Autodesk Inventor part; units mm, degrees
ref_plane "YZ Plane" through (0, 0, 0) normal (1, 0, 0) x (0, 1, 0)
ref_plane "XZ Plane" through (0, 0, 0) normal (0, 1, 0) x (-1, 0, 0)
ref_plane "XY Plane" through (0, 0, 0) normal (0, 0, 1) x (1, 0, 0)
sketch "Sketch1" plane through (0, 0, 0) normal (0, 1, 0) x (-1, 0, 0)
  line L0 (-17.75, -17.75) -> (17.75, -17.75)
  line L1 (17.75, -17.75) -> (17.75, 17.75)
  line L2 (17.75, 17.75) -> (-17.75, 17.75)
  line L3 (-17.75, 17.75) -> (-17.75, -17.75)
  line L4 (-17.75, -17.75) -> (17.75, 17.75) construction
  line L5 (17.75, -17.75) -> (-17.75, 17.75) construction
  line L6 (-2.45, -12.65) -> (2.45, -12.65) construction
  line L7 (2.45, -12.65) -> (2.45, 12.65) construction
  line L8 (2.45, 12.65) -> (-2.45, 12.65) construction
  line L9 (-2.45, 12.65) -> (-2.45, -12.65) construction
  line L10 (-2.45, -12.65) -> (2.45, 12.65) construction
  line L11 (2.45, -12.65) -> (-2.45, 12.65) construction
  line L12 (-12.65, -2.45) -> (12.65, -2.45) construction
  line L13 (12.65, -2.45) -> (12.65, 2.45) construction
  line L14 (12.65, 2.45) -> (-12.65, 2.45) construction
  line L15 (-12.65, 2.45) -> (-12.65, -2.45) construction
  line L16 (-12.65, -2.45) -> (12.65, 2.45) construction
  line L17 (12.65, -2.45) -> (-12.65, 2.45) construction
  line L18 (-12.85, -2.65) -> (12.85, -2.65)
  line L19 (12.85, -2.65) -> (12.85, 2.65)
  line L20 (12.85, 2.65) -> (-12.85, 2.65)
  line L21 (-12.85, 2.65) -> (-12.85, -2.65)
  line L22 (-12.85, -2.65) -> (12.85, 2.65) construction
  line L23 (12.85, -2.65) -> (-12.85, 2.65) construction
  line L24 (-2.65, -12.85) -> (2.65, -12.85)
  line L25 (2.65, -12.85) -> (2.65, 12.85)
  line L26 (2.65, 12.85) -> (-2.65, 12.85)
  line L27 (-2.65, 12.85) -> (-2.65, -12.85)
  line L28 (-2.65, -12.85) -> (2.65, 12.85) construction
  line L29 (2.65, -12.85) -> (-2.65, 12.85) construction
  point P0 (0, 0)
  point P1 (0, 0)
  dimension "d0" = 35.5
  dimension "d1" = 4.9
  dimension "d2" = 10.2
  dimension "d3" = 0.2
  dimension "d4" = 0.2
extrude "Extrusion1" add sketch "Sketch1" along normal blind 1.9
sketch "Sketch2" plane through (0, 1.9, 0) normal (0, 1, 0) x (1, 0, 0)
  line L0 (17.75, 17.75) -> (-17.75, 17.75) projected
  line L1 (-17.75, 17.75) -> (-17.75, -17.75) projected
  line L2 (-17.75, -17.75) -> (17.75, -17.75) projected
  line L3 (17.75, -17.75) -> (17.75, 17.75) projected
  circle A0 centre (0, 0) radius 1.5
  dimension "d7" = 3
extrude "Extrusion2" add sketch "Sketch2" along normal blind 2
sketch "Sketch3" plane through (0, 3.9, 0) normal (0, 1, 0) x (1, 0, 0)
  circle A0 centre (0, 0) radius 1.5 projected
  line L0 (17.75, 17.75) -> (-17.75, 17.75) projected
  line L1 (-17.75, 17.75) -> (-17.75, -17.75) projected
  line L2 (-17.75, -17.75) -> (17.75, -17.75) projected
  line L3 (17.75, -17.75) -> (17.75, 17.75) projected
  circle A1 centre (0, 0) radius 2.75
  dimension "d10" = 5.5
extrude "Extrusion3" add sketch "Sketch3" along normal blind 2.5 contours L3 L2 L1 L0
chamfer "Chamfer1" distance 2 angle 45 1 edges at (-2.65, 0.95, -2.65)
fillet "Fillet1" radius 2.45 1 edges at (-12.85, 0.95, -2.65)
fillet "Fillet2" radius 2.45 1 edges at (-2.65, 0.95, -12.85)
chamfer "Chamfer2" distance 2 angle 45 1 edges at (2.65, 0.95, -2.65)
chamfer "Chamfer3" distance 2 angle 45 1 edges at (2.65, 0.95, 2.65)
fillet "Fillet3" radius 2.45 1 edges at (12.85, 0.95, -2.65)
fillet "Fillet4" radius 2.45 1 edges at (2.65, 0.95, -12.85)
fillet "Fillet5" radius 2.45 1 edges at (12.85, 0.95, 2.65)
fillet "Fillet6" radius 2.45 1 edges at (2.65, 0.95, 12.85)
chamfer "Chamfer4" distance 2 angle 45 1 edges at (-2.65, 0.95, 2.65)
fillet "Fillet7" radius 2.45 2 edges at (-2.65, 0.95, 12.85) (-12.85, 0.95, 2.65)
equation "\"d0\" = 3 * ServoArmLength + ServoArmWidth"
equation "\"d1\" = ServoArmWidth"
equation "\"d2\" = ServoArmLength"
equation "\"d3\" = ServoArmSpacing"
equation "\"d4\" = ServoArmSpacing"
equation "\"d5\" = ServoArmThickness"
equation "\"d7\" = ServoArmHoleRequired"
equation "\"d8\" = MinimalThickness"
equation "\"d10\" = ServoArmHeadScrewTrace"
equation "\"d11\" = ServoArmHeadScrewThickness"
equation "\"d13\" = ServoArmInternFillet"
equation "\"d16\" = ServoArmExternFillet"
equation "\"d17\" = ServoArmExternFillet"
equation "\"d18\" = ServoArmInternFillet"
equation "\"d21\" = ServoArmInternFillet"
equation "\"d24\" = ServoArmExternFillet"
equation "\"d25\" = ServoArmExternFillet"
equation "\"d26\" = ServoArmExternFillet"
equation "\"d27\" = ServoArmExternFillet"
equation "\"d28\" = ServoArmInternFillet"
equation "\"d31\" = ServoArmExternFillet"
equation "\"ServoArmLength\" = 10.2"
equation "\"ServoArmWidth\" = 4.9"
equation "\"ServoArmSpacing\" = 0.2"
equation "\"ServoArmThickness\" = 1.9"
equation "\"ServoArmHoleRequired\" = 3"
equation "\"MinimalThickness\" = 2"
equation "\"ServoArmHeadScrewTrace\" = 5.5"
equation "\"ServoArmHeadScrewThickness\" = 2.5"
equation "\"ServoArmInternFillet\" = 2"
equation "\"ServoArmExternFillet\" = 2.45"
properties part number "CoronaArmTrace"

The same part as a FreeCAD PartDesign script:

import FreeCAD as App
import Part
import Sketcher

V = App.Vector
Q = App.Units.Quantity


def edges_at(feature, points):
    """Names of the edges that pass closest to the given points."""
    edges = feature.Shape.Edges
    near = lambda p: min(range(len(edges)), key=lambda i: edges[i].distToShape(Part.Vertex(*p))[0])
    return sorted({f"Edge{near(p) + 1}" for p in points})


def add_polygon(sketch, points):
    """Adds a closed chain of lines whose ends are joined by coincident constraints."""
    first, n = sketch.GeometryCount, len(points)
    for a, b in zip(points, points[1:] + points[:1]):
        sketch.addGeometry(Part.LineSegment(App.Vector(*a, 0), App.Vector(*b, 0)), False)
    for i in range(n):
        sketch.addConstraint(Sketcher.Constraint("Coincident", first + i, 2, first + (i + 1) % n, 1))

doc = App.newDocument("Part")
body = doc.addObject("PartDesign::Body", "Body")

sketch1 = body.newObject("Sketcher::SketchObject", "Sketch")
sketch1.AttachmentSupport = (doc.getObject("XZ_Plane"), [""])
sketch1.MapMode = "FlatFace"
add_polygon(sketch1, [(17.75, 17.75), (17.75, -17.75), (-17.75, -17.75), (-17.75, 17.75)])
add_polygon(sketch1, [(2.65, -2.65), (12.85, -2.65), (12.85, 2.65), (2.65, 2.65), (2.65, 12.85), (-2.65, 12.85), (-2.65, 2.65), (-12.85, 2.65), (-12.85, -2.65), (-2.65, -2.65), (-2.65, -12.85), (2.65, -12.85)])
sketch1.addConstraint([
    Sketcher.Constraint("Vertical", 0),
    Sketcher.Constraint("Horizontal", 1),
    Sketcher.Constraint("Vertical", 2),
    Sketcher.Constraint("Horizontal", 3),
    Sketcher.Constraint("Horizontal", 4),
    Sketcher.Constraint("Vertical", 5),
    Sketcher.Constraint("Horizontal", 6),
    Sketcher.Constraint("Vertical", 7),
    Sketcher.Constraint("Horizontal", 8),
    Sketcher.Constraint("Vertical", 9),
    Sketcher.Constraint("Horizontal", 10),
    Sketcher.Constraint("Vertical", 11),
    Sketcher.Constraint("Horizontal", 12),
    Sketcher.Constraint("Vertical", 13),
    Sketcher.Constraint("Horizontal", 14),
    Sketcher.Constraint("Vertical", 15),
    Sketcher.Constraint("Symmetric", 0, 2, 2, 2, -1, 1),
    Sketcher.Constraint("Symmetric", 4, 2, 10, 2, -1, 1),
    Sketcher.Constraint("Symmetric", 6, 2, 12, 2, -1, 1),
    Sketcher.Constraint("Symmetric", 8, 2, 14, 2, -1, 1),
    Sketcher.Constraint("Symmetric", 6, 2, 9, 2, -2),
    Sketcher.Constraint("Equal", 3, 0),
    Sketcher.Constraint("Equal", 14, 5),
    Sketcher.Constraint("Equal", 12, 7),
    Sketcher.Constraint("DistanceX", 1, 2, 1, 1, Q("35.5 mm")),
    Sketcher.Constraint("DistanceX", 4, 1, 4, 2, Q("10.2 mm")),
    Sketcher.Constraint("DistanceX", 4, 2, 0, 2, Q("4.9 mm")),
])
pad1 = body.newObject("PartDesign::Pad", "Pad")
pad1.Profile = sketch1
pad1.Length = 1.9
pad1.Reversed = True

sketch2 = body.newObject("Sketcher::SketchObject", "Sketch001")
sketch2.AttachmentSupport = (doc.getObject("XZ_Plane"), [""])
sketch2.MapMode = "FlatFace"
sketch2.AttachmentOffset = App.Placement(V(0, 0, -1.9), App.Rotation())
add_polygon(sketch2, [(17.75, 17.75), (17.75, -17.75), (-17.75, -17.75), (-17.75, 17.75)])
sketch2.addGeometry(Part.Circle(V(0, 0, 0), V(0, 0, 1), 1.5), False)
sketch2.addConstraint([
    Sketcher.Constraint("Vertical", 0),
    Sketcher.Constraint("Horizontal", 1),
    Sketcher.Constraint("Vertical", 2),
    Sketcher.Constraint("Horizontal", 3),
    Sketcher.Constraint("Coincident", 4, 3, -1, 1),
    Sketcher.Constraint("Symmetric", 0, 2, 2, 2, -1, 1),
    Sketcher.Constraint("Equal", 3, 0),
    Sketcher.Constraint("Diameter", 4, Q("3 mm")),
    Sketcher.Constraint("DistanceX", 1, 2, 1, 1, Q("35.5 mm")),
])
pad2 = body.newObject("PartDesign::Pad", "Pad001")
pad2.Profile = sketch2
pad2.Length = 2
pad2.Reversed = True

sketch3 = body.newObject("Sketcher::SketchObject", "Sketch002")
sketch3.AttachmentSupport = (doc.getObject("XZ_Plane"), [""])
sketch3.MapMode = "FlatFace"
sketch3.AttachmentOffset = App.Placement(V(0, 0, -3.9), App.Rotation())
add_polygon(sketch3, [(17.75, 17.75), (17.75, -17.75), (-17.75, -17.75), (-17.75, 17.75)])
sketch3.addGeometry(Part.Circle(V(0, 0, 0), V(0, 0, 1), 2.75), False)
sketch3.addConstraint([
    Sketcher.Constraint("Vertical", 0),
    Sketcher.Constraint("Horizontal", 1),
    Sketcher.Constraint("Vertical", 2),
    Sketcher.Constraint("Horizontal", 3),
    Sketcher.Constraint("Coincident", 4, 3, -1, 1),
    Sketcher.Constraint("Symmetric", 0, 2, 2, 2, -1, 1),
    Sketcher.Constraint("Equal", 3, 0),
    Sketcher.Constraint("Diameter", 4, Q("5.5 mm")),
    Sketcher.Constraint("DistanceX", 1, 2, 1, 1, Q("35.5 mm")),
])
pad3 = body.newObject("PartDesign::Pad", "Pad002")
pad3.Profile = sketch3
pad3.Length = 2.5
pad3.Reversed = True
doc.recompute()

chamfer = body.newObject("PartDesign::Chamfer", "Chamfer")
chamfer.Base = (pad3, edges_at(pad3, [(-2.65, 0.95, -2.65)]))
chamfer.Size = 2
doc.recompute()

fillet = body.newObject("PartDesign::Fillet", "Fillet")
fillet.Base = (chamfer, edges_at(chamfer, [(-12.85, 0.95, -2.65)]))
fillet.Radius = 2.45
doc.recompute()

fillet2 = body.newObject("PartDesign::Fillet", "Fillet001")
fillet2.Base = (fillet, edges_at(fillet, [(-2.65, 0.95, -12.85)]))
fillet2.Radius = 2.45
doc.recompute()

chamfer2 = body.newObject("PartDesign::Chamfer", "Chamfer001")
chamfer2.Base = (fillet2, edges_at(fillet2, [(2.65, 0.95, -2.65)]))
chamfer2.Size = 2
doc.recompute()

chamfer3 = body.newObject("PartDesign::Chamfer", "Chamfer002")
chamfer3.Base = (chamfer2, edges_at(chamfer2, [(2.65, 0.95, 2.65)]))
chamfer3.Size = 2
doc.recompute()

fillet3 = body.newObject("PartDesign::Fillet", "Fillet002")
fillet3.Base = (chamfer3, edges_at(chamfer3, [(12.85, 0.95, -2.65)]))
fillet3.Radius = 2.45
doc.recompute()

fillet4 = body.newObject("PartDesign::Fillet", "Fillet003")
fillet4.Base = (fillet3, edges_at(fillet3, [(2.65, 0.95, -12.85)]))
fillet4.Radius = 2.45
doc.recompute()

fillet5 = body.newObject("PartDesign::Fillet", "Fillet004")
fillet5.Base = (fillet4, edges_at(fillet4, [(12.85, 0.95, 2.65)]))
fillet5.Radius = 2.45
doc.recompute()

fillet6 = body.newObject("PartDesign::Fillet", "Fillet005")
fillet6.Base = (fillet5, edges_at(fillet5, [(2.65, 0.95, 12.85)]))
fillet6.Radius = 2.45
doc.recompute()

chamfer4 = body.newObject("PartDesign::Chamfer", "Chamfer003")
chamfer4.Base = (fillet6, edges_at(fillet6, [(-2.65, 0.95, 2.65)]))
chamfer4.Size = 2
doc.recompute()

fillet7 = body.newObject("PartDesign::Fillet", "Fillet006")
fillet7.Base = (chamfer4, edges_at(chamfer4, [(-2.65, 0.95, 12.85), (-12.85, 0.95, 2.65)]))
fillet7.Radius = 2.45

doc.recompute()
